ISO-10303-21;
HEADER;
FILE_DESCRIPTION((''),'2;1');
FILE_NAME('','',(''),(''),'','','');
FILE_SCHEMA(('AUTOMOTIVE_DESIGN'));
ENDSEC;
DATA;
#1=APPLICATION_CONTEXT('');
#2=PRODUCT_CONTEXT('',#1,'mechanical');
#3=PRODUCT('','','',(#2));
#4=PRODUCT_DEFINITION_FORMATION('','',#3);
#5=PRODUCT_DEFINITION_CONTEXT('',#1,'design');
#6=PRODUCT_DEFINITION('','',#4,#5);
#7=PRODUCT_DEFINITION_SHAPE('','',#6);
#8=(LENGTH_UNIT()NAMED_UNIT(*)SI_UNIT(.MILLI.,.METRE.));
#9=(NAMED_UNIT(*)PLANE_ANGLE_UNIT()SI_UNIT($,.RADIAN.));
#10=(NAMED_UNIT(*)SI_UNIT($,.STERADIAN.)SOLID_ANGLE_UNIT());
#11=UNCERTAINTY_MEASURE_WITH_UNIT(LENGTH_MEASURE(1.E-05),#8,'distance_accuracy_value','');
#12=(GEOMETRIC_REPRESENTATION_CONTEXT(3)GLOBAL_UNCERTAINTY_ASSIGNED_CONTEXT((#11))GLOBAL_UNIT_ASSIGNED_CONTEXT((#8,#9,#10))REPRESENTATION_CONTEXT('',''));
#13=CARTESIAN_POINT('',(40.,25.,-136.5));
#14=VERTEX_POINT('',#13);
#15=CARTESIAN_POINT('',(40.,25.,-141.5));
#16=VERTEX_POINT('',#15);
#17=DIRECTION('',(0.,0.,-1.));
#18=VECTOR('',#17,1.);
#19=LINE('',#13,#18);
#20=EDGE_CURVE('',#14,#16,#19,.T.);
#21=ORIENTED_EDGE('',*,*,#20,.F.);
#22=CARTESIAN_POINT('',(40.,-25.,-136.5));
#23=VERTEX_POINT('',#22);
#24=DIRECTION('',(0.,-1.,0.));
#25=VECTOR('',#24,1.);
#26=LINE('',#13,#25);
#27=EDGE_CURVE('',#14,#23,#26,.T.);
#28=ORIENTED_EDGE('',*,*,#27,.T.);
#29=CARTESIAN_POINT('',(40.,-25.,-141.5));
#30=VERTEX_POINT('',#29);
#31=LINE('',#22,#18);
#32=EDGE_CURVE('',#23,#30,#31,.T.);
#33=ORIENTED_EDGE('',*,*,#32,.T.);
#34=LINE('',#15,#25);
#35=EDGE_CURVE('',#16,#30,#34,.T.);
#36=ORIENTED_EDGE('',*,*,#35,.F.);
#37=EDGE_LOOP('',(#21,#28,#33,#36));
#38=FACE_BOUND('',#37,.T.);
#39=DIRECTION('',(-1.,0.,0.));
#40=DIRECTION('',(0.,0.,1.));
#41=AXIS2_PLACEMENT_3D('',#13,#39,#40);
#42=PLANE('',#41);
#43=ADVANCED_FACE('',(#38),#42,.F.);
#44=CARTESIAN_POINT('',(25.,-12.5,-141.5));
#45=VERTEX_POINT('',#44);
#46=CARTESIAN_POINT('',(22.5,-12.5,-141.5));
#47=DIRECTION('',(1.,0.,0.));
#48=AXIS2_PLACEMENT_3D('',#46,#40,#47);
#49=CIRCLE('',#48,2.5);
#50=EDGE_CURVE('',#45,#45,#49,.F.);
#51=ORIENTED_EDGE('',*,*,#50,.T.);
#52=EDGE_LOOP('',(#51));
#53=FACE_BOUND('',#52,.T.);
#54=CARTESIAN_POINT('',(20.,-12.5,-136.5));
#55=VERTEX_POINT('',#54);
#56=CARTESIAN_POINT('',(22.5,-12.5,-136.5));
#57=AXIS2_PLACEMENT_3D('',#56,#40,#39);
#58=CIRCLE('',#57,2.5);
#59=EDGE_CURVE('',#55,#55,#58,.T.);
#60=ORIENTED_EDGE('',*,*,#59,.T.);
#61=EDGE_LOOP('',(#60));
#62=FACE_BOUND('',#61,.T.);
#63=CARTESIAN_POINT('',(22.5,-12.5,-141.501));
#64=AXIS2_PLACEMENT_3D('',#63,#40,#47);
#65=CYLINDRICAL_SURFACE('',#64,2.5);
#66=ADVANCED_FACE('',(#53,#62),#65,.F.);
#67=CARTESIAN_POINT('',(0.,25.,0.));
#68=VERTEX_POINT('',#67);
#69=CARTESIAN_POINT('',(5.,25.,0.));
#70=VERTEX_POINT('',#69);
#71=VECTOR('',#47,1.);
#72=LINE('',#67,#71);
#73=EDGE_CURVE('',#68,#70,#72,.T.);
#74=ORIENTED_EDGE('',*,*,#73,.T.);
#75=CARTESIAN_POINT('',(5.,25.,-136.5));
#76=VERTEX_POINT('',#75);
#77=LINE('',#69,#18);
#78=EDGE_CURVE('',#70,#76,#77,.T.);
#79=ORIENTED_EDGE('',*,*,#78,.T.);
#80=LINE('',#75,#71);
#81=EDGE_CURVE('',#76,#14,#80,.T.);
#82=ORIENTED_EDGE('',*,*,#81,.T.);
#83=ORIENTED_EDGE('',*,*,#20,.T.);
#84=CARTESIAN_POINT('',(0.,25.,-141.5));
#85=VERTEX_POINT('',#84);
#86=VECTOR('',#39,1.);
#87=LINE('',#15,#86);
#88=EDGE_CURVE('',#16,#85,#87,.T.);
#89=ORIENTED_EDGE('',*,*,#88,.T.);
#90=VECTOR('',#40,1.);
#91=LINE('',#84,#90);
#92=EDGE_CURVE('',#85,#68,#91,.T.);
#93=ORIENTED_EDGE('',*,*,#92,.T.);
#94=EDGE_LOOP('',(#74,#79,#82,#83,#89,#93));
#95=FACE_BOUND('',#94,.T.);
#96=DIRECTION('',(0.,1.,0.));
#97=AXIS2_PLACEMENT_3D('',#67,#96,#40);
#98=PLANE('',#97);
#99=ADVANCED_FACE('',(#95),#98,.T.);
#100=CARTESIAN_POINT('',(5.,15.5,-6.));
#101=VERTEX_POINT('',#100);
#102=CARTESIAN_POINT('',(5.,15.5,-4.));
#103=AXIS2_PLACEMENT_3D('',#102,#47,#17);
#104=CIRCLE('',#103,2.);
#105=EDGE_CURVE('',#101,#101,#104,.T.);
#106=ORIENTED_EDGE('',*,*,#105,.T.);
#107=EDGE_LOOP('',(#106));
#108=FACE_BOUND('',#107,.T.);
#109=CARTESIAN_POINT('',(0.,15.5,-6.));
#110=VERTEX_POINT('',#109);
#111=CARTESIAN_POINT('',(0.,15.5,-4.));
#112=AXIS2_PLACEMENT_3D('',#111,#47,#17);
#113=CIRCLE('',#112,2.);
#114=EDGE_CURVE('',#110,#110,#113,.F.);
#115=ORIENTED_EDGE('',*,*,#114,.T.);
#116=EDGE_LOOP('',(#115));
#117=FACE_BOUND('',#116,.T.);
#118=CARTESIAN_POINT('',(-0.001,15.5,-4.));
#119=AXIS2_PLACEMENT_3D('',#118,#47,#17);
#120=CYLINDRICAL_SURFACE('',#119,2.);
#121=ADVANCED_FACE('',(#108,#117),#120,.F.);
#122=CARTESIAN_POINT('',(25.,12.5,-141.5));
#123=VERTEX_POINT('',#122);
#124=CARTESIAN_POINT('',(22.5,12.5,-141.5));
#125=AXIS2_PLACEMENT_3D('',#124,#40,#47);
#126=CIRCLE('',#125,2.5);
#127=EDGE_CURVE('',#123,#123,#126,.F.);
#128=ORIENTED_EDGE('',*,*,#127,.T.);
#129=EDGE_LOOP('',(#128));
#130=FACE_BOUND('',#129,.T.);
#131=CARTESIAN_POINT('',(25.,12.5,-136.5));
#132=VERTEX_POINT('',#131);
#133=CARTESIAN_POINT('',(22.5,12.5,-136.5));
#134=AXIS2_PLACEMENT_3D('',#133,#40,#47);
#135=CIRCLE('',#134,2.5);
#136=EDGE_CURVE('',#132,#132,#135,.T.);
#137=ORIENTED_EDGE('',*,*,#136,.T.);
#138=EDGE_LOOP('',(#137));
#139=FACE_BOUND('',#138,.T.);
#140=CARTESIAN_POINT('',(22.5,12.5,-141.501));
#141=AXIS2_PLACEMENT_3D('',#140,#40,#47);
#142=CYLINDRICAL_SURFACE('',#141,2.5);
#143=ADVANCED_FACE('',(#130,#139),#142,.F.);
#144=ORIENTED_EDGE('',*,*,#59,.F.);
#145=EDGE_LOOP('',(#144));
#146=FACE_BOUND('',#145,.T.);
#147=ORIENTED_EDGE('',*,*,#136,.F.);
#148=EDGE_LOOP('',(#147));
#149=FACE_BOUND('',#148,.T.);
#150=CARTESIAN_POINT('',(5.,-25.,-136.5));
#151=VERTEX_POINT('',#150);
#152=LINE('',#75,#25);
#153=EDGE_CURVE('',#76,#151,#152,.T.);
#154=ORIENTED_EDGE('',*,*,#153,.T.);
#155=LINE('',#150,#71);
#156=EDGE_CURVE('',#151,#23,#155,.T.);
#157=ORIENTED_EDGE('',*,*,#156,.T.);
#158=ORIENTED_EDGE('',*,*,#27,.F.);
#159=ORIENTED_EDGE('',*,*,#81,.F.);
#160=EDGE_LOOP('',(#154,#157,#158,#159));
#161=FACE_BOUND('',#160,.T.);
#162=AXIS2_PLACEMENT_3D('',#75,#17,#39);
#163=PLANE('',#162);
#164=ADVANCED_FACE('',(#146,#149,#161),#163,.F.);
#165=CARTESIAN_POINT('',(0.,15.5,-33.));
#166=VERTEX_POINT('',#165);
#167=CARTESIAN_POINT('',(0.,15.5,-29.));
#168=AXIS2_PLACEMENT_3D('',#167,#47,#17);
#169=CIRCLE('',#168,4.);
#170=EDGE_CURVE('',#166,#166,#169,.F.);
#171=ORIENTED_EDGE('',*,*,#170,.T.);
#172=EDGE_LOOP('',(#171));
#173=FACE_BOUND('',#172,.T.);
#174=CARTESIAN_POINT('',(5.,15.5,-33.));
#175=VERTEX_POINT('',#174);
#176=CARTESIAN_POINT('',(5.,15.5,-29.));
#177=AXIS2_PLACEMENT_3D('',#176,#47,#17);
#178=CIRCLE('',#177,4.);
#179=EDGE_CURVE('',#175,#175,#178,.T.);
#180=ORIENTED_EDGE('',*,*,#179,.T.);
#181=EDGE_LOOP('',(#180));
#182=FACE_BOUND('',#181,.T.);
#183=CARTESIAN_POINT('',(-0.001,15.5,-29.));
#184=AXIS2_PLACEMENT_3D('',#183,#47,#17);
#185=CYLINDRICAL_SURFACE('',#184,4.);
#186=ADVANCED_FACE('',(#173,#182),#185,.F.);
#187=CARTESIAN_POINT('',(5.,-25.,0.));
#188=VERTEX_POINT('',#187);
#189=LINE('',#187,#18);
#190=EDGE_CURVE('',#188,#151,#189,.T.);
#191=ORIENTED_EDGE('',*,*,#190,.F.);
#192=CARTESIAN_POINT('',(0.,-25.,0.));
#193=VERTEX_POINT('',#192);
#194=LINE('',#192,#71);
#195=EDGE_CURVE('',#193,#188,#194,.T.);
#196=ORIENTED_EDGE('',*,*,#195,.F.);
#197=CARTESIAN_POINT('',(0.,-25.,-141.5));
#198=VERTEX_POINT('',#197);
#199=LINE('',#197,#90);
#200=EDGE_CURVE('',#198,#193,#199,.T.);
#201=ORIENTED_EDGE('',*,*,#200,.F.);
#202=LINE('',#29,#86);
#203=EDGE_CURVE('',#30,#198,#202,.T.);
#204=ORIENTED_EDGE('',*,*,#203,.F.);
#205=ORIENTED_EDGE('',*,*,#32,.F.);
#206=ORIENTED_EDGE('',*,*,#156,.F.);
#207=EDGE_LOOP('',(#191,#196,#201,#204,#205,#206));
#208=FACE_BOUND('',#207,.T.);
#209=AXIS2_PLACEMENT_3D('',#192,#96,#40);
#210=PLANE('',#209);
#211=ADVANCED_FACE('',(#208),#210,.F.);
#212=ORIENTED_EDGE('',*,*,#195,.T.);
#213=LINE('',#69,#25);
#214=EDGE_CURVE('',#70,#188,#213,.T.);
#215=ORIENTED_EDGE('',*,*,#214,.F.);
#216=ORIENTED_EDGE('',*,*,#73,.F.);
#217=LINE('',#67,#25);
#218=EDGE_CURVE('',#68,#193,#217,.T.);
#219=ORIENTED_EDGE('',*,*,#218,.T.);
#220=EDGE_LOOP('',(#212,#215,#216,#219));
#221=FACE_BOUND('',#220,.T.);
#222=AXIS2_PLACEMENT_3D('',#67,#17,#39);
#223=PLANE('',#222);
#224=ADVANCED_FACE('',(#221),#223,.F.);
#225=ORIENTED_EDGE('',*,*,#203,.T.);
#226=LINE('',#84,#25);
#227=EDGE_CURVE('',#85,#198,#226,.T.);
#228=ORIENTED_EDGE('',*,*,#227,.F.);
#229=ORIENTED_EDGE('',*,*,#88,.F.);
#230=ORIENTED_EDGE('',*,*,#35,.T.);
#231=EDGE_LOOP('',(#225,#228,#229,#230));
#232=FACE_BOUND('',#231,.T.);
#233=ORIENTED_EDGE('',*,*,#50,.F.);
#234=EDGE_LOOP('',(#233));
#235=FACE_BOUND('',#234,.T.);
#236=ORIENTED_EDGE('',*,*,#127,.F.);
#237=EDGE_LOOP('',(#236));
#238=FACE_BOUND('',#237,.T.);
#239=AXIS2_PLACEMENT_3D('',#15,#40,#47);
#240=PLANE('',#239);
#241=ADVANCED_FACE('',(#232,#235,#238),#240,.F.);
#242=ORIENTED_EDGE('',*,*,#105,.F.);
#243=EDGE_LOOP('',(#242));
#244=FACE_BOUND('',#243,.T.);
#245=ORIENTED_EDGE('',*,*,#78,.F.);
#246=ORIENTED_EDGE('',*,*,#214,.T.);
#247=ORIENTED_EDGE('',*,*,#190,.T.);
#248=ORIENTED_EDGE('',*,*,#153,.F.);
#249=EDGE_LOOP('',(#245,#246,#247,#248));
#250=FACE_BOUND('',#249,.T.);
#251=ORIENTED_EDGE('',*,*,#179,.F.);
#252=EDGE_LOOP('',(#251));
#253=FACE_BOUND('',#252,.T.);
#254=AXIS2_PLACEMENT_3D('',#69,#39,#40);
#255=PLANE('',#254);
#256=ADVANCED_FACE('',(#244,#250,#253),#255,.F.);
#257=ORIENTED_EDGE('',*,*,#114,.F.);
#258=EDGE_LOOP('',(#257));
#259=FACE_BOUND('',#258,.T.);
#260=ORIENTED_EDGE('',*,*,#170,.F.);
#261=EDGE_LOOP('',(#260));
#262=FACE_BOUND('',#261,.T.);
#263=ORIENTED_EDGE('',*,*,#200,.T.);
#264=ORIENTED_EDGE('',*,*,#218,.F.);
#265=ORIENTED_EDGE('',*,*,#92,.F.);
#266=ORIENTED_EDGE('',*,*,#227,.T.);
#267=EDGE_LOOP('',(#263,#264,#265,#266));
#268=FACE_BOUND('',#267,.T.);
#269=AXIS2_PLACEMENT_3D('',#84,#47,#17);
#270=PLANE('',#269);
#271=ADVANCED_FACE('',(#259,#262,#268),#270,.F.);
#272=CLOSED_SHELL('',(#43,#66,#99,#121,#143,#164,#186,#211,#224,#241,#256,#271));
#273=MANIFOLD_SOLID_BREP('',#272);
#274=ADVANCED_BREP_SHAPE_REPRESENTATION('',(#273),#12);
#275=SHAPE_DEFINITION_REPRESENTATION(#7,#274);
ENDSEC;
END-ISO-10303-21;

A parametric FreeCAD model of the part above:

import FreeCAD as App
import Part
import Sketcher

V = App.Vector

doc = App.newDocument("Part")
body = doc.addObject("PartDesign::Body", "Body")

# Sketch on XZ plane
sketch1 = doc.addObject("Sketcher::SketchObject", "Sketch")
body.addObject(sketch1)
sketch1.AttachmentSupport = (doc.XZ_Plane, [""])
sketch1.MapMode = "FlatFace"
sketch1.addGeometry([
    Part.LineSegment(V(0, 0, 0), V(5, 0, 0)),  # 0
    Part.LineSegment(V(5, 0, 0), V(5, -136, 0)),  # 1
    Part.LineSegment(V(5, -136, 0), V(40, -136, 0)),  # 2
    Part.LineSegment(V(40, -136, 0), V(40, -142, 0)),  # 3
    Part.LineSegment(V(40, -142, 0), V(0, -142, 0)),  # 4
    Part.LineSegment(V(0, -142, 0), V(0, 0, 0)),  # 5
], False)
sketch1.addConstraint([
    Sketcher.Constraint("Coincident", 0, 2, 1, 1),
    Sketcher.Constraint("Coincident", 1, 2, 2, 1),
    Sketcher.Constraint("Coincident", 2, 2, 3, 1),
    Sketcher.Constraint("Coincident", 3, 2, 4, 1),
    Sketcher.Constraint("Coincident", 4, 2, 5, 1),
    Sketcher.Constraint("Coincident", 5, 2, 0, 1),
    Sketcher.Constraint("Horizontal", 0),
    Sketcher.Constraint("Vertical", 1),
    Sketcher.Constraint("Horizontal", 2),
    Sketcher.Constraint("Vertical", 3),
    Sketcher.Constraint("Horizontal", 4),
    Sketcher.Constraint("Vertical", 5),
    Sketcher.Constraint("Coincident", 5, 2, -1, 1),
    Sketcher.Constraint("Equal", 0, 3),
    Sketcher.Constraint("DistanceX", 0, 1, 0, 2, 5.0),
    Sketcher.Constraint("DistanceX", 2, 1, 2, 2, 35.0),
    Sketcher.Constraint("DistanceY", 1, 2, 1, 1, 136.5),
])
pad1 = doc.addObject("PartDesign::Pad", "Pad")
body.addObject(pad1)
pad1.Profile = sketch1
pad1.Length = 50
pad1.Midplane = True

# Sketch on YZ plane
sketch2 = doc.addObject("Sketcher::SketchObject", "Sketch001")
body.addObject(sketch2)
sketch2.AttachmentSupport = (doc.YZ_Plane, [""])
sketch2.MapMode = "FlatFace"
sketch2.AttachmentOffset = App.Placement(V(0, 0, 5), App.Rotation())
sketch2.addGeometry(Part.Circle(V(15.5, -4, 0), V(0, 0, 1), 2), False)
sketch2.addConstraint([
    Sketcher.Constraint("Diameter", 0, 4.0),
    Sketcher.Constraint("DistanceY", 0, 3, -1, 1, 4.0),
    Sketcher.Constraint("DistanceX", -1, 1, 0, 3, 15.5),
])
pocket1 = doc.addObject("PartDesign::Pocket", "Pocket")
body.addObject(pocket1)
pocket1.Profile = sketch2
pocket1.Type = "UpToFirst"

# Sketch on YZ plane
sketch3 = doc.addObject("Sketcher::SketchObject", "Sketch002")
body.addObject(sketch3)
sketch3.AttachmentSupport = (doc.YZ_Plane, [""])
sketch3.MapMode = "FlatFace"
sketch3.AttachmentOffset = App.Placement(V(0, 0, 5), App.Rotation())
sketch3.addGeometry(Part.Circle(V(15.5, -29, 0), V(0, 0, 1), 4), False)
sketch3.addConstraint([
    Sketcher.Constraint("Diameter", 0, 8.0),
    Sketcher.Constraint("DistanceY", 0, 3, -1, 1, 29.0),
    Sketcher.Constraint("DistanceX", -1, 1, 0, 3, 15.5),
])
pocket2 = doc.addObject("PartDesign::Pocket", "Pocket001")
body.addObject(pocket2)
pocket2.Profile = sketch3
pocket2.Type = "UpToFirst"

# Sketch on XY plane
sketch4 = doc.addObject("Sketcher::SketchObject", "Sketch003")
body.addObject(sketch4)
sketch4.AttachmentSupport = (doc.XY_Plane, [""])
sketch4.MapMode = "FlatFace"
sketch4.AttachmentOffset = App.Placement(V(0, 0, -136.5), App.Rotation())
sketch4.addGeometry(Part.Circle(V(22.5, 12.5, 0), V(0, 0, 1), 2.5), False)
sketch4.addConstraint([
    Sketcher.Constraint("Diameter", 0, 5.0),
    Sketcher.Constraint("DistanceX", -1, 1, 0, 3, 22.5),
    Sketcher.Constraint("DistanceY", -1, 1, 0, 3, 12.5),
])
pocket3 = doc.addObject("PartDesign::Pocket", "Pocket002")
body.addObject(pocket3)
pocket3.Profile = sketch4
pocket3.Type = "UpToFirst"

# Sketch on XY plane
sketch5 = doc.addObject("Sketcher::SketchObject", "Sketch004")
body.addObject(sketch5)
sketch5.AttachmentSupport = (doc.XY_Plane, [""])
sketch5.MapMode = "FlatFace"
sketch5.AttachmentOffset = App.Placement(V(0, 0, -136.5), App.Rotation())
sketch5.addGeometry(Part.Circle(V(22.5, -12.5, 0), V(0, 0, 1), 2.5), False)
sketch5.addConstraint([
    Sketcher.Constraint("Diameter", 0, 5.0),
    Sketcher.Constraint("DistanceX", -1, 1, 0, 3, 22.5),
    Sketcher.Constraint("DistanceY", 0, 3, -1, 1, 12.5),
])
pocket4 = doc.addObject("PartDesign::Pocket", "Pocket003")
body.addObject(pocket4)
pocket4.Profile = sketch5
pocket4.Type = "UpToFirst"

doc.recompute()
